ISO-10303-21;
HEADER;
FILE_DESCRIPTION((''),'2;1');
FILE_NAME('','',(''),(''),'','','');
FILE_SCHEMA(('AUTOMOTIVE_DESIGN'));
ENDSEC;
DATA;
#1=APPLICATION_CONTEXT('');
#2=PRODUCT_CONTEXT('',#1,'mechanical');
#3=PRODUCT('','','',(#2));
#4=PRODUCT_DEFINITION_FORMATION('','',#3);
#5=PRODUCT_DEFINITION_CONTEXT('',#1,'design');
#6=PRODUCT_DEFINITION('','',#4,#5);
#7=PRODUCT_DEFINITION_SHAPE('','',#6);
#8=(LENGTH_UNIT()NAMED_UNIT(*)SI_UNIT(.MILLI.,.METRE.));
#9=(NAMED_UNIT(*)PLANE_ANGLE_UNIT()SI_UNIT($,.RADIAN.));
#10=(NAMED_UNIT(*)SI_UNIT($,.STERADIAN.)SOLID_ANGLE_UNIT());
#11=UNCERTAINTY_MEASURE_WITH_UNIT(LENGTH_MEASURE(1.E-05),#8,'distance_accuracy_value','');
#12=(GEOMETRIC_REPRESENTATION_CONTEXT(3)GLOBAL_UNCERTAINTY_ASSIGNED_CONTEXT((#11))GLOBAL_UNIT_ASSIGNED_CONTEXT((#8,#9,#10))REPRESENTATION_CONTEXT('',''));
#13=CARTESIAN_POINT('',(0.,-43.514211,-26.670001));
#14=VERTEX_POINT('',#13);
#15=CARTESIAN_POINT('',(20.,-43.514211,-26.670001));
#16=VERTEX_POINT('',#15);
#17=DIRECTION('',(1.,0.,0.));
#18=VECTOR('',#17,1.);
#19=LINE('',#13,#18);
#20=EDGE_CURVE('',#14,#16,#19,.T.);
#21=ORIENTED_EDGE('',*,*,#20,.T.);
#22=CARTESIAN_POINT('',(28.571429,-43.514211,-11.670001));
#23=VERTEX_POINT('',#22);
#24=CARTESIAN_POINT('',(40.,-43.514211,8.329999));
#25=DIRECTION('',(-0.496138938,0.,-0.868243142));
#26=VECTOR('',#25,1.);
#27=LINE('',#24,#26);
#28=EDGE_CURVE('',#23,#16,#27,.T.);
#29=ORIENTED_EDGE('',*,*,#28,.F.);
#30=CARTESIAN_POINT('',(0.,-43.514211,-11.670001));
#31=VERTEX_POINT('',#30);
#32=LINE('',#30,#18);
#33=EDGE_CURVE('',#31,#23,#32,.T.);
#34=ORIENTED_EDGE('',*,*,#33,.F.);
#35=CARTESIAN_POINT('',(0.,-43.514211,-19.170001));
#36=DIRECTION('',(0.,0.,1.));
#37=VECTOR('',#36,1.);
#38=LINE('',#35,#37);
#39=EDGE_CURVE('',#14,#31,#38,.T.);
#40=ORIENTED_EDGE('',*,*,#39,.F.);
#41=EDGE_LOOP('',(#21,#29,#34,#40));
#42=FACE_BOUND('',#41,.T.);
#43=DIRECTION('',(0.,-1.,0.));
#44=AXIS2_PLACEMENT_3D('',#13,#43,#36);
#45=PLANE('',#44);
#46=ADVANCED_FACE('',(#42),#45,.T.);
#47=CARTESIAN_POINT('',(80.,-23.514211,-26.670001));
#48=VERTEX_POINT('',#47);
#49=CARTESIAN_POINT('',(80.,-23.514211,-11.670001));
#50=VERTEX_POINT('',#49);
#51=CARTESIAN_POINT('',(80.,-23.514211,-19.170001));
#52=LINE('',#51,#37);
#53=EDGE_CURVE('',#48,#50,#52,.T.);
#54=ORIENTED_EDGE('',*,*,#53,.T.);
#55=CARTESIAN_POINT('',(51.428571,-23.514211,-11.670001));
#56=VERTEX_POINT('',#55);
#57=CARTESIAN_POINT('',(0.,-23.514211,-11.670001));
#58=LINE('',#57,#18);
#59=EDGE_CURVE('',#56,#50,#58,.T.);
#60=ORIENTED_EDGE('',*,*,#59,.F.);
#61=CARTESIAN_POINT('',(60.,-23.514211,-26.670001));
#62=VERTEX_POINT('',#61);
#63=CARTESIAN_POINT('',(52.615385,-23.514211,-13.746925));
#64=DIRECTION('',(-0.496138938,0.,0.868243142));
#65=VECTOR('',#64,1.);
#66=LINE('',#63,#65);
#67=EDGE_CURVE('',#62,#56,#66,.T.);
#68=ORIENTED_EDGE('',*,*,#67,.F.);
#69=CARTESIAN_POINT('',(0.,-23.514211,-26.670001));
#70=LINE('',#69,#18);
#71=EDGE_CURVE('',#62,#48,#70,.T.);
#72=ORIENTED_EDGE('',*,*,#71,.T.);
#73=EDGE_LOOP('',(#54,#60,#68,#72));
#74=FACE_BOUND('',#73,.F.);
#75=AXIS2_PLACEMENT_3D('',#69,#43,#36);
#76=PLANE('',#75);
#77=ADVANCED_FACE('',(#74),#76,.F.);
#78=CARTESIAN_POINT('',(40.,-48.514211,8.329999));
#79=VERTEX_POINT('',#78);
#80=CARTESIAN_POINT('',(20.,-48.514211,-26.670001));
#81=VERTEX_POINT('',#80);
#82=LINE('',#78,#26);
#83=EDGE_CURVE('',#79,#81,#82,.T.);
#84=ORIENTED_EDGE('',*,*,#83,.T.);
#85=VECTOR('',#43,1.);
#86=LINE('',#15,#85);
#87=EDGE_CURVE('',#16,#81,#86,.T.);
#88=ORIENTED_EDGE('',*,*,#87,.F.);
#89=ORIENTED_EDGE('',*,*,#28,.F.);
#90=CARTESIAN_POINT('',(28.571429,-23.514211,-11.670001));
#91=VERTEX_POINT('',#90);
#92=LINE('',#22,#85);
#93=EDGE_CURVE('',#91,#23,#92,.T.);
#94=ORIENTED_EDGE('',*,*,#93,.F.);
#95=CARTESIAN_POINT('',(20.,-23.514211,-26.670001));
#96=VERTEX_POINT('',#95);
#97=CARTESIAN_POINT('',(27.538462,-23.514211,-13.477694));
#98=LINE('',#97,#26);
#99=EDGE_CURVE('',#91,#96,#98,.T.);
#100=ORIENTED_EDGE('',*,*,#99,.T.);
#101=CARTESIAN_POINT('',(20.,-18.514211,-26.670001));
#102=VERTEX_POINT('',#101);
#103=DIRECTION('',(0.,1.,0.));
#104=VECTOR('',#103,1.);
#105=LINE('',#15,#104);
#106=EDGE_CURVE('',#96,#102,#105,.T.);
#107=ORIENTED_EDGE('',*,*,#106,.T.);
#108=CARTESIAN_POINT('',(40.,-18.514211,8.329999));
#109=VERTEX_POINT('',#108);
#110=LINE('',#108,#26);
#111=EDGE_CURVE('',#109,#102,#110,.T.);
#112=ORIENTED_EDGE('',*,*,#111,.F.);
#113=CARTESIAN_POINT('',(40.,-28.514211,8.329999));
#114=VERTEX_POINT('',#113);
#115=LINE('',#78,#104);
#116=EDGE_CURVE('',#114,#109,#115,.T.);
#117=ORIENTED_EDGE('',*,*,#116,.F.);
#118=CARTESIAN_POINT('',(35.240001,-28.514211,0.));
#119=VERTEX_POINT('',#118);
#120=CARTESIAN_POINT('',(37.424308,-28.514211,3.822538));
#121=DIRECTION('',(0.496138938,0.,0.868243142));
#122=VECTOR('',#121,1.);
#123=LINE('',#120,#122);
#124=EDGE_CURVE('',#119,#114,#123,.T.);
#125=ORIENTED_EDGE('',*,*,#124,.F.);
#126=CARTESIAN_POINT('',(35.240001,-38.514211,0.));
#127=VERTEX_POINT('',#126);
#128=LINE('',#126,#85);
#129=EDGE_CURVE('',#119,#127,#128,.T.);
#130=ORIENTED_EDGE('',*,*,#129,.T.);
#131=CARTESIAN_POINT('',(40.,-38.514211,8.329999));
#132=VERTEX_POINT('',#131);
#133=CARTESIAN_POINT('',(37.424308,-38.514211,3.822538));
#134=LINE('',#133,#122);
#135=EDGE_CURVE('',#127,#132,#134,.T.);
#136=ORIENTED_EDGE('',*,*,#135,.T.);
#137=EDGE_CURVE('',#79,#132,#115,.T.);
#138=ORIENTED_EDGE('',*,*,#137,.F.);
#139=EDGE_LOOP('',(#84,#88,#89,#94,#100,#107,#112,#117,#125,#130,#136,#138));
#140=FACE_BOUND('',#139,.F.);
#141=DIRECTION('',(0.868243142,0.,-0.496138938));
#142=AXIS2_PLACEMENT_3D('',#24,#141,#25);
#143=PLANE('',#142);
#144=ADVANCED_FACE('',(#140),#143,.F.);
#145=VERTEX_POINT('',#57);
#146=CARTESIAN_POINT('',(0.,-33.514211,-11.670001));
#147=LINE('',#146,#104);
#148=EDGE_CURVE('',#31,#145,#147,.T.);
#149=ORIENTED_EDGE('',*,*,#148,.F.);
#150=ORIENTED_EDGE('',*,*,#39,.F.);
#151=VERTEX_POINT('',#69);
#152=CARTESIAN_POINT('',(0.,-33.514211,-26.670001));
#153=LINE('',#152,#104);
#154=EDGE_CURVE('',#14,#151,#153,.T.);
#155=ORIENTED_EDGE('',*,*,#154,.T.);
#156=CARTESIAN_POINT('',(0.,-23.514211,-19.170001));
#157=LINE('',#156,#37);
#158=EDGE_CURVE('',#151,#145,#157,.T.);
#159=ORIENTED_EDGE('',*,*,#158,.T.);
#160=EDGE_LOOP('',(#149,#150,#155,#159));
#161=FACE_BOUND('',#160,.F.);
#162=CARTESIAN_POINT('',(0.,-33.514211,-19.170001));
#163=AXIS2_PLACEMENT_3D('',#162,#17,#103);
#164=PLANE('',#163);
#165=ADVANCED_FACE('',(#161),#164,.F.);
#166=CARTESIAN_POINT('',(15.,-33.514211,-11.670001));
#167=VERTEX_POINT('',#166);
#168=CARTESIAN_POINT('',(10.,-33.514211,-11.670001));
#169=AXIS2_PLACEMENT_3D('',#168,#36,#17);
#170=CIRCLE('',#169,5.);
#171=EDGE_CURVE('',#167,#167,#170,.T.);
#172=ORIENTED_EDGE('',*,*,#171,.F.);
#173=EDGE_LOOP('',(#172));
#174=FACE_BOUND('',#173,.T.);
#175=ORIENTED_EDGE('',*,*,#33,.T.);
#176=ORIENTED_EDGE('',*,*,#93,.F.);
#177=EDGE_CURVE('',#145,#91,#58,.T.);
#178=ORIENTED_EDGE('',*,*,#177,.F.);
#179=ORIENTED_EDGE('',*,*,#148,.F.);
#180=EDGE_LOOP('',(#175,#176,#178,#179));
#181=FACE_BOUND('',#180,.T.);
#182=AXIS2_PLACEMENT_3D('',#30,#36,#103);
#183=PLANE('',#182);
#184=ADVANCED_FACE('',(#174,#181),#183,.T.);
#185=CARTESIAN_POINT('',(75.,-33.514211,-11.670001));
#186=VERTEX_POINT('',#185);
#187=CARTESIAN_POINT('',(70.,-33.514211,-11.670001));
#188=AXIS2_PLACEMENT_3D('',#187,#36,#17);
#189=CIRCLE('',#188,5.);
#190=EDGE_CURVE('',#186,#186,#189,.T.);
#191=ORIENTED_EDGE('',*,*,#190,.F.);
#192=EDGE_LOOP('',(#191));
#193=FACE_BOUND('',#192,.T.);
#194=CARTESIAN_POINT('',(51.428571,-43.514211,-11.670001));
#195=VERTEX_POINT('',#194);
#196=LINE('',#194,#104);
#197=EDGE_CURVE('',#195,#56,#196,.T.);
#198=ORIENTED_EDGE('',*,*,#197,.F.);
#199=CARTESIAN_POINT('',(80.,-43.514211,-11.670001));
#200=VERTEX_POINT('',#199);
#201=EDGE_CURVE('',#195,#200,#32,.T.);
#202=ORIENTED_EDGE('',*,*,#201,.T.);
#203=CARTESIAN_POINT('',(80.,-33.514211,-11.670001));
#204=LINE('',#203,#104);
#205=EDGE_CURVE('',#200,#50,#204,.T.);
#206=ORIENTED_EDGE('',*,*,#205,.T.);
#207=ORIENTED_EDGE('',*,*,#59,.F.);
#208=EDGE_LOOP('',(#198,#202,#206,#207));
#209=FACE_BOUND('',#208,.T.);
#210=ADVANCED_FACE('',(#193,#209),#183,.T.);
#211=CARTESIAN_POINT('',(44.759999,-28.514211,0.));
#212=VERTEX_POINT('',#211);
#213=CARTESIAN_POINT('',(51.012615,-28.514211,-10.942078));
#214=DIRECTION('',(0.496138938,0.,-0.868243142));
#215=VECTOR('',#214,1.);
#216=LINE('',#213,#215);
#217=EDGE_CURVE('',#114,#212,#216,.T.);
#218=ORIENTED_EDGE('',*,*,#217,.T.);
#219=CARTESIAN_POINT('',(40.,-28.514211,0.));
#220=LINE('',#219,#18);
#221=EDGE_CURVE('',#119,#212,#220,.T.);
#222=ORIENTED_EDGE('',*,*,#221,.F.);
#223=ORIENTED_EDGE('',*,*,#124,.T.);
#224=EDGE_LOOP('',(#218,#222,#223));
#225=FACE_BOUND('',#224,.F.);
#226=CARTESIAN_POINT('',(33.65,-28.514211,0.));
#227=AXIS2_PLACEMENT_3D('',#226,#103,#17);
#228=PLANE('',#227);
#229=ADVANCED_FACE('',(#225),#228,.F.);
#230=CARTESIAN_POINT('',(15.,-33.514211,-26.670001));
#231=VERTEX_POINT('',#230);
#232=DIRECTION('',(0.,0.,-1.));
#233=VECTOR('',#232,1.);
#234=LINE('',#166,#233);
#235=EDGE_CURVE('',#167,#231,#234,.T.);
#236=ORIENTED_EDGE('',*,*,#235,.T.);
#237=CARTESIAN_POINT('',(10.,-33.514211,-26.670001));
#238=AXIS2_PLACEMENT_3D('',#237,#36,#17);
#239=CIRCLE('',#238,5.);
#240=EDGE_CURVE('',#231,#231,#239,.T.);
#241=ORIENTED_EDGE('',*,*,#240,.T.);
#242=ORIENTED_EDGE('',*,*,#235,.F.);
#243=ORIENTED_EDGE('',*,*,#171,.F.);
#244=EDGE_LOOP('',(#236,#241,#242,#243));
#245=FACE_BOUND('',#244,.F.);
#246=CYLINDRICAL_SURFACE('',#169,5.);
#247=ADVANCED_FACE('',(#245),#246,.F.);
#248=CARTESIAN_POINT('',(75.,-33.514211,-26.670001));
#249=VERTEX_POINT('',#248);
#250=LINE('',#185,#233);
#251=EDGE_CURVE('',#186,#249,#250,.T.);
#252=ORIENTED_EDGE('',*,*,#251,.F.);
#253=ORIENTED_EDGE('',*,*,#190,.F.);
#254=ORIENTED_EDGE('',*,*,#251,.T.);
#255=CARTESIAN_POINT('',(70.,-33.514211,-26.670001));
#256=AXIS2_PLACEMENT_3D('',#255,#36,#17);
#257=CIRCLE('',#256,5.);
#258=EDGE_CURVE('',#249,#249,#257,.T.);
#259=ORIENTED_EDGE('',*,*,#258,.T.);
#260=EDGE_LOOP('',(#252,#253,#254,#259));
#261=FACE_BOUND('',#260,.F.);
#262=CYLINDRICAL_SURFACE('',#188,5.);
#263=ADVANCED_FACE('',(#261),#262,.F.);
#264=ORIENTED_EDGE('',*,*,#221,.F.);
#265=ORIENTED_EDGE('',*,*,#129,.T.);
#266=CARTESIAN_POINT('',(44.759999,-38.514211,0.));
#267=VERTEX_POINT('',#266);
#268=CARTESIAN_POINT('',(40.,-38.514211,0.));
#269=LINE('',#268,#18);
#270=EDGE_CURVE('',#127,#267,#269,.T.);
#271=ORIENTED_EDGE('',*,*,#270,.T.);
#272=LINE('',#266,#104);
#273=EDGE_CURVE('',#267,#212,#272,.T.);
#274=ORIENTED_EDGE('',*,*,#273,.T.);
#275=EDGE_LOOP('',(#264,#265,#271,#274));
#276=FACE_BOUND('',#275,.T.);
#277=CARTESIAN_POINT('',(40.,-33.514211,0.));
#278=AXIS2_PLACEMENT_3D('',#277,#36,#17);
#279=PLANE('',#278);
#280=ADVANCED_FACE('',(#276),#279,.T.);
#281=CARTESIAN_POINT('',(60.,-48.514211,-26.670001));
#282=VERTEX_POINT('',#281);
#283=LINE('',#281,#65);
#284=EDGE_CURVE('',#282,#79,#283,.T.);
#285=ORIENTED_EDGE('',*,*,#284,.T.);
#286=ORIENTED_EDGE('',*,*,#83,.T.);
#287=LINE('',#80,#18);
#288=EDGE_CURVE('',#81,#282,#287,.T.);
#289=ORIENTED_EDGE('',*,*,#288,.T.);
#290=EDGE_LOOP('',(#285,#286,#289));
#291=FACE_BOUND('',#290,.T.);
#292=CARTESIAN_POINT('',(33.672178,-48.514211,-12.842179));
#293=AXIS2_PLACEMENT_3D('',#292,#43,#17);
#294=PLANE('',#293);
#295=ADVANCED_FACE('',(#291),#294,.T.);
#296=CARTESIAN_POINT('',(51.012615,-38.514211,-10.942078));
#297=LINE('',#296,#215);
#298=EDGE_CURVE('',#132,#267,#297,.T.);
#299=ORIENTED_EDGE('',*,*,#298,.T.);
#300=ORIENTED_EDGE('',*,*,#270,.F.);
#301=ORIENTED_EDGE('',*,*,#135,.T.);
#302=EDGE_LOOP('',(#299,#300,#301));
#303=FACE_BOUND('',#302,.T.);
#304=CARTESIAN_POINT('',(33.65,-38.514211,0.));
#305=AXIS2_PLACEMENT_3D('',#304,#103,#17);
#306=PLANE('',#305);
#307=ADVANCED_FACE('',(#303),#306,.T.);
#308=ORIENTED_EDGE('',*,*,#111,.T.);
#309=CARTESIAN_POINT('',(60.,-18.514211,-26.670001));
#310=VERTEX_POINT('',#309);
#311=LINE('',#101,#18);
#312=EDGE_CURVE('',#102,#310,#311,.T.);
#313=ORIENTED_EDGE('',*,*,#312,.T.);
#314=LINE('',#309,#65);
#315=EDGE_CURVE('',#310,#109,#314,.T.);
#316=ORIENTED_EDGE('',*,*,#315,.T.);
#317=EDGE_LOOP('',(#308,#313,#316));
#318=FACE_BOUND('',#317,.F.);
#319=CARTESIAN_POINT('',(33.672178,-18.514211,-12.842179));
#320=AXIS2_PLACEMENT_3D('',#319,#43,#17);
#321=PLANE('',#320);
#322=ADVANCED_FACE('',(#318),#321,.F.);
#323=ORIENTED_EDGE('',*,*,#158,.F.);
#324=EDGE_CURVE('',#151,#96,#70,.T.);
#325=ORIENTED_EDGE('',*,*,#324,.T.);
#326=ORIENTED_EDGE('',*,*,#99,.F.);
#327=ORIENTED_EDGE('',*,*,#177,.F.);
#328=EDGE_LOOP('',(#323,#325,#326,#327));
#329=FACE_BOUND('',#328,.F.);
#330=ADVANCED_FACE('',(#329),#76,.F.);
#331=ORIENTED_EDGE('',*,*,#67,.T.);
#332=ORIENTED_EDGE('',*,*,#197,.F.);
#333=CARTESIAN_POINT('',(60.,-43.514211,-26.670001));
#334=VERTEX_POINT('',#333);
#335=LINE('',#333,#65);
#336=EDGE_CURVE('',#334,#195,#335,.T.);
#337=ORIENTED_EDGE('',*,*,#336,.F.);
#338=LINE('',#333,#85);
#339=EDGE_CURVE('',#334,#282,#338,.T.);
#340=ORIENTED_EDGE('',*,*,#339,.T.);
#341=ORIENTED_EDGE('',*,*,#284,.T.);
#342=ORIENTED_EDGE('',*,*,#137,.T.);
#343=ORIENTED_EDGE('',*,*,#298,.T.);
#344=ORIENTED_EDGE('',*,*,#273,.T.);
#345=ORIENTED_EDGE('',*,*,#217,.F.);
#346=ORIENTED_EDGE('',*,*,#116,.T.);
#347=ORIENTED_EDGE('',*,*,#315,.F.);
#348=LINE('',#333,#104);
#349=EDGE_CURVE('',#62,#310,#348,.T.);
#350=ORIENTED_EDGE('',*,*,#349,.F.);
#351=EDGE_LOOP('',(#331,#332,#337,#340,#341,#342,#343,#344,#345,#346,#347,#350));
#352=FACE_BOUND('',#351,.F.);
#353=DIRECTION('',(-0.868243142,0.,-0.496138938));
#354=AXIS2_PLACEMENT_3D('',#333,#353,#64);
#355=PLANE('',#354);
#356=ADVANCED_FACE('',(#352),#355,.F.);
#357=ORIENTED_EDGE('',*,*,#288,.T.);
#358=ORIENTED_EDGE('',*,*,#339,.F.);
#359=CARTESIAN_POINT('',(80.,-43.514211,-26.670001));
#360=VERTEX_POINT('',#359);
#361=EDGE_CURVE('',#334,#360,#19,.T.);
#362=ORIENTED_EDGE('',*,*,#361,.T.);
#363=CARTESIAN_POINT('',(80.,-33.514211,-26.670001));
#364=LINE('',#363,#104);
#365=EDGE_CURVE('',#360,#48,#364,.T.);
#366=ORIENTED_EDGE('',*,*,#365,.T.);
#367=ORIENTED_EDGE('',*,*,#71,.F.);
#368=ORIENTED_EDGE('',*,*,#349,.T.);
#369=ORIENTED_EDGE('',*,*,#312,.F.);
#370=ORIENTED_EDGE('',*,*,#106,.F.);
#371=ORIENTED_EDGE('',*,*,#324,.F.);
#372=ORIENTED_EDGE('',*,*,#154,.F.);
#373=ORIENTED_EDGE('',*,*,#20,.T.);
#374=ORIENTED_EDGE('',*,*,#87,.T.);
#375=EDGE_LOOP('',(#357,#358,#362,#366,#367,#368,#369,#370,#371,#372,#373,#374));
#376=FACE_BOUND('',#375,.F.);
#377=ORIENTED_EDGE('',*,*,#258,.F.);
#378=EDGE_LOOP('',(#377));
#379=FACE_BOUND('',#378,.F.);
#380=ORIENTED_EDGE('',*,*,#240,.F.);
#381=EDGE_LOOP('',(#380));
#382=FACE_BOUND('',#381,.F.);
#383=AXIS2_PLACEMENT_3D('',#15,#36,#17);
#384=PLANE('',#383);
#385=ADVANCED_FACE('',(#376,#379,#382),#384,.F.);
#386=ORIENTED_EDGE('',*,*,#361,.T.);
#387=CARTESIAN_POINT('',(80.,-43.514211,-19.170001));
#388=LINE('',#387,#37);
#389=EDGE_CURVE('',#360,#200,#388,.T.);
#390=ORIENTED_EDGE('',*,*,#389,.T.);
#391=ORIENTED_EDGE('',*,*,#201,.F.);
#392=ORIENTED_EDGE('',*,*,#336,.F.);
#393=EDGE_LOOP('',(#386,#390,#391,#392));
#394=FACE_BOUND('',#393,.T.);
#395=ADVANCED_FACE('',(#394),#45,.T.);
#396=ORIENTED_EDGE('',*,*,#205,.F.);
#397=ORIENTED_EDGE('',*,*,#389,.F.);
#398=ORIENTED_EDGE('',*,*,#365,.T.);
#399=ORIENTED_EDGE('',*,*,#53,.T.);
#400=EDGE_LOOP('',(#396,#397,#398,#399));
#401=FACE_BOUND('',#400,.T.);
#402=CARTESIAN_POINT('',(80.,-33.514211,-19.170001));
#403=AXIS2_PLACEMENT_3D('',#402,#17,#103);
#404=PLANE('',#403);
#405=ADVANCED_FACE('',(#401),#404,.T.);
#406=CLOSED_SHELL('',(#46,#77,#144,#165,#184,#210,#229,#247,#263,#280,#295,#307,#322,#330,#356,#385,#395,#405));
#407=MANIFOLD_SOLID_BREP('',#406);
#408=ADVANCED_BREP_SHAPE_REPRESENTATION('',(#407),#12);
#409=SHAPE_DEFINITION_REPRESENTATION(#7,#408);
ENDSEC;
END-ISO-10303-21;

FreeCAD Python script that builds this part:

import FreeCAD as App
import Part
import Sketcher
Q = App.Units.Quantity


def add_polygon(sketch, points):
    """Adds a closed chain of lines whose ends are joined by coincident constraints."""
    first, n = sketch.GeometryCount, len(points)
    for a, b in zip(points, points[1:] + points[:1]):
        sketch.addGeometry(Part.LineSegment(App.Vector(*a, 0), App.Vector(*b, 0)), False)
    for i in range(n):
        sketch.addConstraint(Sketcher.Constraint("Coincident", first + i, 2, first + (i + 1) % n, 1))

doc = App.newDocument("Part")
body = doc.addObject("PartDesign::Body", "Body")

sketch1 = body.newObject("Sketcher::SketchObject", "Sketch")
sketch1.AttachmentSupport = (doc.getObject("YZ_Plane"), [""])
sketch1.MapMode = "FlatFace"
add_polygon(sketch1, [(-43.514211, -11.670001), (-43.514211, -26.670001), (-23.514211, -26.670001), (-23.514211, -11.670001)])
sketch1.addConstraint(Sketcher.Constraint("Vertical", 0))
sketch1.addConstraint(Sketcher.Constraint("Horizontal", 1))
sketch1.addConstraint(Sketcher.Constraint("Vertical", 2))
sketch1.addConstraint(Sketcher.Constraint("Horizontal", 3))
sketch1.addConstraint(Sketcher.Constraint("DistanceX", 1, 1, 1, 2, Q("20 mm")))
sketch1.addConstraint(Sketcher.Constraint("DistanceY", 0, 2, 0, 1, Q("15 mm")))
sketch1.addConstraint(Sketcher.Constraint("DistanceY", 0, 2, -1, 1, Q("26.670001 mm")))
sketch1.addConstraint(Sketcher.Constraint("DistanceX", 0, 2, -1, 1, Q("43.514211 mm")))
pad1 = body.newObject("PartDesign::Pad", "Pad")
pad1.Profile = sketch1
pad1.Length = 80

sketch2 = body.newObject("Sketcher::SketchObject", "Sketch001")
sketch2.AttachmentSupport = (doc.getObject("XZ_Plane"), [""])
sketch2.MapMode = "FlatFace"
sketch2.AttachmentOffset = App.Placement(App.Vector(0, 0, 43.514211), App.Rotation())
add_polygon(sketch2, [(20, -26.670001), (60, -26.670001), (40, 8.329999)])
sketch2.addConstraint(Sketcher.Constraint("Horizontal", 0))
sketch2.addConstraint(Sketcher.Constraint("Equal", 1, 2))
sketch2.addConstraint(Sketcher.Constraint("DistanceX", 0, 1, 0, 2, Q("40 mm")))
sketch2.addConstraint(Sketcher.Constraint("DistanceX", -1, 1, 0, 2, Q("60 mm")))
sketch2.addConstraint(Sketcher.Constraint("DistanceY", 0, 2, 1, 2, Q("35 mm")))
sketch2.addConstraint(Sketcher.Constraint("DistanceY", 0, 2, -1, 1, Q("26.670001 mm")))
pad2 = body.newObject("PartDesign::Pad", "Pad001")
pad2.Profile = sketch2
pad2.Type = "TwoLengths"
pad2.Length = 25
pad2.Length2 = 5
pad2.Reversed = True

sketch3 = body.newObject("Sketcher::SketchObject", "Sketch002")
sketch3.AttachmentSupport = (doc.getObject("XY_Plane"), [""])
sketch3.MapMode = "FlatFace"
add_polygon(sketch3, [(33.65, -28.514211), (33.65, -38.514211), (46.35, -38.514211), (46.35, -28.514211)])
sketch3.addConstraint(Sketcher.Constraint("Vertical", 0))
sketch3.addConstraint(Sketcher.Constraint("Horizontal", 1))
sketch3.addConstraint(Sketcher.Constraint("Vertical", 2))
sketch3.addConstraint(Sketcher.Constraint("Horizontal", 3))
sketch3.addConstraint(Sketcher.Constraint("DistanceY", 0, 2, 0, 1, Q("10 mm")))
sketch3.addConstraint(Sketcher.Constraint("DistanceX", 1, 1, 1, 2, Q("12.7 mm")))
sketch3.addConstraint(Sketcher.Constraint("DistanceX", -1, 1, 0, 2, Q("33.65 mm")))
sketch3.addConstraint(Sketcher.Constraint("DistanceY", 0, 2, -1, 1, Q("38.514211 mm")))
pocket1 = body.newObject("PartDesign::Pocket", "Pocket")
pocket1.Profile = sketch3
pocket1.Length = 8.382
pocket1.Reversed = True

sketch4 = body.newObject("Sketcher::SketchObject", "Sketch003")
sketch4.AttachmentSupport = (doc.getObject("XY_Plane"), [""])
sketch4.MapMode = "FlatFace"
sketch4.AttachmentOffset = App.Placement(App.Vector(0, 0, -11.670001), App.Rotation())
sketch4.addGeometry(Part.Circle(App.Vector(10, -33.514211, 0), App.Vector(0, 0, 1), 5), False)
sketch4.addGeometry(Part.Circle(App.Vector(70, -33.514211, 0), App.Vector(0, 0, 1), 5), False)
sketch4.addConstraint(Sketcher.Constraint("Equal", 0, 1))
sketch4.addConstraint(Sketcher.Constraint("Horizontal", 0, 3, 1, 3))
sketch4.addConstraint(Sketcher.Constraint("Diameter", 0, Q("10 mm")))
sketch4.addConstraint(Sketcher.Constraint("DistanceX", -1, 1, 0, 3, Q("10 mm")))
sketch4.addConstraint(Sketcher.Constraint("DistanceX", -1, 1, 1, 3, Q("70 mm")))
sketch4.addConstraint(Sketcher.Constraint("DistanceY", 0, 3, -1, 1, Q("33.514211 mm")))
pocket2 = body.newObject("PartDesign::Pocket", "Pocket001")
pocket2.Profile = sketch4
pocket2.Length = 25.4

doc.recompute()
